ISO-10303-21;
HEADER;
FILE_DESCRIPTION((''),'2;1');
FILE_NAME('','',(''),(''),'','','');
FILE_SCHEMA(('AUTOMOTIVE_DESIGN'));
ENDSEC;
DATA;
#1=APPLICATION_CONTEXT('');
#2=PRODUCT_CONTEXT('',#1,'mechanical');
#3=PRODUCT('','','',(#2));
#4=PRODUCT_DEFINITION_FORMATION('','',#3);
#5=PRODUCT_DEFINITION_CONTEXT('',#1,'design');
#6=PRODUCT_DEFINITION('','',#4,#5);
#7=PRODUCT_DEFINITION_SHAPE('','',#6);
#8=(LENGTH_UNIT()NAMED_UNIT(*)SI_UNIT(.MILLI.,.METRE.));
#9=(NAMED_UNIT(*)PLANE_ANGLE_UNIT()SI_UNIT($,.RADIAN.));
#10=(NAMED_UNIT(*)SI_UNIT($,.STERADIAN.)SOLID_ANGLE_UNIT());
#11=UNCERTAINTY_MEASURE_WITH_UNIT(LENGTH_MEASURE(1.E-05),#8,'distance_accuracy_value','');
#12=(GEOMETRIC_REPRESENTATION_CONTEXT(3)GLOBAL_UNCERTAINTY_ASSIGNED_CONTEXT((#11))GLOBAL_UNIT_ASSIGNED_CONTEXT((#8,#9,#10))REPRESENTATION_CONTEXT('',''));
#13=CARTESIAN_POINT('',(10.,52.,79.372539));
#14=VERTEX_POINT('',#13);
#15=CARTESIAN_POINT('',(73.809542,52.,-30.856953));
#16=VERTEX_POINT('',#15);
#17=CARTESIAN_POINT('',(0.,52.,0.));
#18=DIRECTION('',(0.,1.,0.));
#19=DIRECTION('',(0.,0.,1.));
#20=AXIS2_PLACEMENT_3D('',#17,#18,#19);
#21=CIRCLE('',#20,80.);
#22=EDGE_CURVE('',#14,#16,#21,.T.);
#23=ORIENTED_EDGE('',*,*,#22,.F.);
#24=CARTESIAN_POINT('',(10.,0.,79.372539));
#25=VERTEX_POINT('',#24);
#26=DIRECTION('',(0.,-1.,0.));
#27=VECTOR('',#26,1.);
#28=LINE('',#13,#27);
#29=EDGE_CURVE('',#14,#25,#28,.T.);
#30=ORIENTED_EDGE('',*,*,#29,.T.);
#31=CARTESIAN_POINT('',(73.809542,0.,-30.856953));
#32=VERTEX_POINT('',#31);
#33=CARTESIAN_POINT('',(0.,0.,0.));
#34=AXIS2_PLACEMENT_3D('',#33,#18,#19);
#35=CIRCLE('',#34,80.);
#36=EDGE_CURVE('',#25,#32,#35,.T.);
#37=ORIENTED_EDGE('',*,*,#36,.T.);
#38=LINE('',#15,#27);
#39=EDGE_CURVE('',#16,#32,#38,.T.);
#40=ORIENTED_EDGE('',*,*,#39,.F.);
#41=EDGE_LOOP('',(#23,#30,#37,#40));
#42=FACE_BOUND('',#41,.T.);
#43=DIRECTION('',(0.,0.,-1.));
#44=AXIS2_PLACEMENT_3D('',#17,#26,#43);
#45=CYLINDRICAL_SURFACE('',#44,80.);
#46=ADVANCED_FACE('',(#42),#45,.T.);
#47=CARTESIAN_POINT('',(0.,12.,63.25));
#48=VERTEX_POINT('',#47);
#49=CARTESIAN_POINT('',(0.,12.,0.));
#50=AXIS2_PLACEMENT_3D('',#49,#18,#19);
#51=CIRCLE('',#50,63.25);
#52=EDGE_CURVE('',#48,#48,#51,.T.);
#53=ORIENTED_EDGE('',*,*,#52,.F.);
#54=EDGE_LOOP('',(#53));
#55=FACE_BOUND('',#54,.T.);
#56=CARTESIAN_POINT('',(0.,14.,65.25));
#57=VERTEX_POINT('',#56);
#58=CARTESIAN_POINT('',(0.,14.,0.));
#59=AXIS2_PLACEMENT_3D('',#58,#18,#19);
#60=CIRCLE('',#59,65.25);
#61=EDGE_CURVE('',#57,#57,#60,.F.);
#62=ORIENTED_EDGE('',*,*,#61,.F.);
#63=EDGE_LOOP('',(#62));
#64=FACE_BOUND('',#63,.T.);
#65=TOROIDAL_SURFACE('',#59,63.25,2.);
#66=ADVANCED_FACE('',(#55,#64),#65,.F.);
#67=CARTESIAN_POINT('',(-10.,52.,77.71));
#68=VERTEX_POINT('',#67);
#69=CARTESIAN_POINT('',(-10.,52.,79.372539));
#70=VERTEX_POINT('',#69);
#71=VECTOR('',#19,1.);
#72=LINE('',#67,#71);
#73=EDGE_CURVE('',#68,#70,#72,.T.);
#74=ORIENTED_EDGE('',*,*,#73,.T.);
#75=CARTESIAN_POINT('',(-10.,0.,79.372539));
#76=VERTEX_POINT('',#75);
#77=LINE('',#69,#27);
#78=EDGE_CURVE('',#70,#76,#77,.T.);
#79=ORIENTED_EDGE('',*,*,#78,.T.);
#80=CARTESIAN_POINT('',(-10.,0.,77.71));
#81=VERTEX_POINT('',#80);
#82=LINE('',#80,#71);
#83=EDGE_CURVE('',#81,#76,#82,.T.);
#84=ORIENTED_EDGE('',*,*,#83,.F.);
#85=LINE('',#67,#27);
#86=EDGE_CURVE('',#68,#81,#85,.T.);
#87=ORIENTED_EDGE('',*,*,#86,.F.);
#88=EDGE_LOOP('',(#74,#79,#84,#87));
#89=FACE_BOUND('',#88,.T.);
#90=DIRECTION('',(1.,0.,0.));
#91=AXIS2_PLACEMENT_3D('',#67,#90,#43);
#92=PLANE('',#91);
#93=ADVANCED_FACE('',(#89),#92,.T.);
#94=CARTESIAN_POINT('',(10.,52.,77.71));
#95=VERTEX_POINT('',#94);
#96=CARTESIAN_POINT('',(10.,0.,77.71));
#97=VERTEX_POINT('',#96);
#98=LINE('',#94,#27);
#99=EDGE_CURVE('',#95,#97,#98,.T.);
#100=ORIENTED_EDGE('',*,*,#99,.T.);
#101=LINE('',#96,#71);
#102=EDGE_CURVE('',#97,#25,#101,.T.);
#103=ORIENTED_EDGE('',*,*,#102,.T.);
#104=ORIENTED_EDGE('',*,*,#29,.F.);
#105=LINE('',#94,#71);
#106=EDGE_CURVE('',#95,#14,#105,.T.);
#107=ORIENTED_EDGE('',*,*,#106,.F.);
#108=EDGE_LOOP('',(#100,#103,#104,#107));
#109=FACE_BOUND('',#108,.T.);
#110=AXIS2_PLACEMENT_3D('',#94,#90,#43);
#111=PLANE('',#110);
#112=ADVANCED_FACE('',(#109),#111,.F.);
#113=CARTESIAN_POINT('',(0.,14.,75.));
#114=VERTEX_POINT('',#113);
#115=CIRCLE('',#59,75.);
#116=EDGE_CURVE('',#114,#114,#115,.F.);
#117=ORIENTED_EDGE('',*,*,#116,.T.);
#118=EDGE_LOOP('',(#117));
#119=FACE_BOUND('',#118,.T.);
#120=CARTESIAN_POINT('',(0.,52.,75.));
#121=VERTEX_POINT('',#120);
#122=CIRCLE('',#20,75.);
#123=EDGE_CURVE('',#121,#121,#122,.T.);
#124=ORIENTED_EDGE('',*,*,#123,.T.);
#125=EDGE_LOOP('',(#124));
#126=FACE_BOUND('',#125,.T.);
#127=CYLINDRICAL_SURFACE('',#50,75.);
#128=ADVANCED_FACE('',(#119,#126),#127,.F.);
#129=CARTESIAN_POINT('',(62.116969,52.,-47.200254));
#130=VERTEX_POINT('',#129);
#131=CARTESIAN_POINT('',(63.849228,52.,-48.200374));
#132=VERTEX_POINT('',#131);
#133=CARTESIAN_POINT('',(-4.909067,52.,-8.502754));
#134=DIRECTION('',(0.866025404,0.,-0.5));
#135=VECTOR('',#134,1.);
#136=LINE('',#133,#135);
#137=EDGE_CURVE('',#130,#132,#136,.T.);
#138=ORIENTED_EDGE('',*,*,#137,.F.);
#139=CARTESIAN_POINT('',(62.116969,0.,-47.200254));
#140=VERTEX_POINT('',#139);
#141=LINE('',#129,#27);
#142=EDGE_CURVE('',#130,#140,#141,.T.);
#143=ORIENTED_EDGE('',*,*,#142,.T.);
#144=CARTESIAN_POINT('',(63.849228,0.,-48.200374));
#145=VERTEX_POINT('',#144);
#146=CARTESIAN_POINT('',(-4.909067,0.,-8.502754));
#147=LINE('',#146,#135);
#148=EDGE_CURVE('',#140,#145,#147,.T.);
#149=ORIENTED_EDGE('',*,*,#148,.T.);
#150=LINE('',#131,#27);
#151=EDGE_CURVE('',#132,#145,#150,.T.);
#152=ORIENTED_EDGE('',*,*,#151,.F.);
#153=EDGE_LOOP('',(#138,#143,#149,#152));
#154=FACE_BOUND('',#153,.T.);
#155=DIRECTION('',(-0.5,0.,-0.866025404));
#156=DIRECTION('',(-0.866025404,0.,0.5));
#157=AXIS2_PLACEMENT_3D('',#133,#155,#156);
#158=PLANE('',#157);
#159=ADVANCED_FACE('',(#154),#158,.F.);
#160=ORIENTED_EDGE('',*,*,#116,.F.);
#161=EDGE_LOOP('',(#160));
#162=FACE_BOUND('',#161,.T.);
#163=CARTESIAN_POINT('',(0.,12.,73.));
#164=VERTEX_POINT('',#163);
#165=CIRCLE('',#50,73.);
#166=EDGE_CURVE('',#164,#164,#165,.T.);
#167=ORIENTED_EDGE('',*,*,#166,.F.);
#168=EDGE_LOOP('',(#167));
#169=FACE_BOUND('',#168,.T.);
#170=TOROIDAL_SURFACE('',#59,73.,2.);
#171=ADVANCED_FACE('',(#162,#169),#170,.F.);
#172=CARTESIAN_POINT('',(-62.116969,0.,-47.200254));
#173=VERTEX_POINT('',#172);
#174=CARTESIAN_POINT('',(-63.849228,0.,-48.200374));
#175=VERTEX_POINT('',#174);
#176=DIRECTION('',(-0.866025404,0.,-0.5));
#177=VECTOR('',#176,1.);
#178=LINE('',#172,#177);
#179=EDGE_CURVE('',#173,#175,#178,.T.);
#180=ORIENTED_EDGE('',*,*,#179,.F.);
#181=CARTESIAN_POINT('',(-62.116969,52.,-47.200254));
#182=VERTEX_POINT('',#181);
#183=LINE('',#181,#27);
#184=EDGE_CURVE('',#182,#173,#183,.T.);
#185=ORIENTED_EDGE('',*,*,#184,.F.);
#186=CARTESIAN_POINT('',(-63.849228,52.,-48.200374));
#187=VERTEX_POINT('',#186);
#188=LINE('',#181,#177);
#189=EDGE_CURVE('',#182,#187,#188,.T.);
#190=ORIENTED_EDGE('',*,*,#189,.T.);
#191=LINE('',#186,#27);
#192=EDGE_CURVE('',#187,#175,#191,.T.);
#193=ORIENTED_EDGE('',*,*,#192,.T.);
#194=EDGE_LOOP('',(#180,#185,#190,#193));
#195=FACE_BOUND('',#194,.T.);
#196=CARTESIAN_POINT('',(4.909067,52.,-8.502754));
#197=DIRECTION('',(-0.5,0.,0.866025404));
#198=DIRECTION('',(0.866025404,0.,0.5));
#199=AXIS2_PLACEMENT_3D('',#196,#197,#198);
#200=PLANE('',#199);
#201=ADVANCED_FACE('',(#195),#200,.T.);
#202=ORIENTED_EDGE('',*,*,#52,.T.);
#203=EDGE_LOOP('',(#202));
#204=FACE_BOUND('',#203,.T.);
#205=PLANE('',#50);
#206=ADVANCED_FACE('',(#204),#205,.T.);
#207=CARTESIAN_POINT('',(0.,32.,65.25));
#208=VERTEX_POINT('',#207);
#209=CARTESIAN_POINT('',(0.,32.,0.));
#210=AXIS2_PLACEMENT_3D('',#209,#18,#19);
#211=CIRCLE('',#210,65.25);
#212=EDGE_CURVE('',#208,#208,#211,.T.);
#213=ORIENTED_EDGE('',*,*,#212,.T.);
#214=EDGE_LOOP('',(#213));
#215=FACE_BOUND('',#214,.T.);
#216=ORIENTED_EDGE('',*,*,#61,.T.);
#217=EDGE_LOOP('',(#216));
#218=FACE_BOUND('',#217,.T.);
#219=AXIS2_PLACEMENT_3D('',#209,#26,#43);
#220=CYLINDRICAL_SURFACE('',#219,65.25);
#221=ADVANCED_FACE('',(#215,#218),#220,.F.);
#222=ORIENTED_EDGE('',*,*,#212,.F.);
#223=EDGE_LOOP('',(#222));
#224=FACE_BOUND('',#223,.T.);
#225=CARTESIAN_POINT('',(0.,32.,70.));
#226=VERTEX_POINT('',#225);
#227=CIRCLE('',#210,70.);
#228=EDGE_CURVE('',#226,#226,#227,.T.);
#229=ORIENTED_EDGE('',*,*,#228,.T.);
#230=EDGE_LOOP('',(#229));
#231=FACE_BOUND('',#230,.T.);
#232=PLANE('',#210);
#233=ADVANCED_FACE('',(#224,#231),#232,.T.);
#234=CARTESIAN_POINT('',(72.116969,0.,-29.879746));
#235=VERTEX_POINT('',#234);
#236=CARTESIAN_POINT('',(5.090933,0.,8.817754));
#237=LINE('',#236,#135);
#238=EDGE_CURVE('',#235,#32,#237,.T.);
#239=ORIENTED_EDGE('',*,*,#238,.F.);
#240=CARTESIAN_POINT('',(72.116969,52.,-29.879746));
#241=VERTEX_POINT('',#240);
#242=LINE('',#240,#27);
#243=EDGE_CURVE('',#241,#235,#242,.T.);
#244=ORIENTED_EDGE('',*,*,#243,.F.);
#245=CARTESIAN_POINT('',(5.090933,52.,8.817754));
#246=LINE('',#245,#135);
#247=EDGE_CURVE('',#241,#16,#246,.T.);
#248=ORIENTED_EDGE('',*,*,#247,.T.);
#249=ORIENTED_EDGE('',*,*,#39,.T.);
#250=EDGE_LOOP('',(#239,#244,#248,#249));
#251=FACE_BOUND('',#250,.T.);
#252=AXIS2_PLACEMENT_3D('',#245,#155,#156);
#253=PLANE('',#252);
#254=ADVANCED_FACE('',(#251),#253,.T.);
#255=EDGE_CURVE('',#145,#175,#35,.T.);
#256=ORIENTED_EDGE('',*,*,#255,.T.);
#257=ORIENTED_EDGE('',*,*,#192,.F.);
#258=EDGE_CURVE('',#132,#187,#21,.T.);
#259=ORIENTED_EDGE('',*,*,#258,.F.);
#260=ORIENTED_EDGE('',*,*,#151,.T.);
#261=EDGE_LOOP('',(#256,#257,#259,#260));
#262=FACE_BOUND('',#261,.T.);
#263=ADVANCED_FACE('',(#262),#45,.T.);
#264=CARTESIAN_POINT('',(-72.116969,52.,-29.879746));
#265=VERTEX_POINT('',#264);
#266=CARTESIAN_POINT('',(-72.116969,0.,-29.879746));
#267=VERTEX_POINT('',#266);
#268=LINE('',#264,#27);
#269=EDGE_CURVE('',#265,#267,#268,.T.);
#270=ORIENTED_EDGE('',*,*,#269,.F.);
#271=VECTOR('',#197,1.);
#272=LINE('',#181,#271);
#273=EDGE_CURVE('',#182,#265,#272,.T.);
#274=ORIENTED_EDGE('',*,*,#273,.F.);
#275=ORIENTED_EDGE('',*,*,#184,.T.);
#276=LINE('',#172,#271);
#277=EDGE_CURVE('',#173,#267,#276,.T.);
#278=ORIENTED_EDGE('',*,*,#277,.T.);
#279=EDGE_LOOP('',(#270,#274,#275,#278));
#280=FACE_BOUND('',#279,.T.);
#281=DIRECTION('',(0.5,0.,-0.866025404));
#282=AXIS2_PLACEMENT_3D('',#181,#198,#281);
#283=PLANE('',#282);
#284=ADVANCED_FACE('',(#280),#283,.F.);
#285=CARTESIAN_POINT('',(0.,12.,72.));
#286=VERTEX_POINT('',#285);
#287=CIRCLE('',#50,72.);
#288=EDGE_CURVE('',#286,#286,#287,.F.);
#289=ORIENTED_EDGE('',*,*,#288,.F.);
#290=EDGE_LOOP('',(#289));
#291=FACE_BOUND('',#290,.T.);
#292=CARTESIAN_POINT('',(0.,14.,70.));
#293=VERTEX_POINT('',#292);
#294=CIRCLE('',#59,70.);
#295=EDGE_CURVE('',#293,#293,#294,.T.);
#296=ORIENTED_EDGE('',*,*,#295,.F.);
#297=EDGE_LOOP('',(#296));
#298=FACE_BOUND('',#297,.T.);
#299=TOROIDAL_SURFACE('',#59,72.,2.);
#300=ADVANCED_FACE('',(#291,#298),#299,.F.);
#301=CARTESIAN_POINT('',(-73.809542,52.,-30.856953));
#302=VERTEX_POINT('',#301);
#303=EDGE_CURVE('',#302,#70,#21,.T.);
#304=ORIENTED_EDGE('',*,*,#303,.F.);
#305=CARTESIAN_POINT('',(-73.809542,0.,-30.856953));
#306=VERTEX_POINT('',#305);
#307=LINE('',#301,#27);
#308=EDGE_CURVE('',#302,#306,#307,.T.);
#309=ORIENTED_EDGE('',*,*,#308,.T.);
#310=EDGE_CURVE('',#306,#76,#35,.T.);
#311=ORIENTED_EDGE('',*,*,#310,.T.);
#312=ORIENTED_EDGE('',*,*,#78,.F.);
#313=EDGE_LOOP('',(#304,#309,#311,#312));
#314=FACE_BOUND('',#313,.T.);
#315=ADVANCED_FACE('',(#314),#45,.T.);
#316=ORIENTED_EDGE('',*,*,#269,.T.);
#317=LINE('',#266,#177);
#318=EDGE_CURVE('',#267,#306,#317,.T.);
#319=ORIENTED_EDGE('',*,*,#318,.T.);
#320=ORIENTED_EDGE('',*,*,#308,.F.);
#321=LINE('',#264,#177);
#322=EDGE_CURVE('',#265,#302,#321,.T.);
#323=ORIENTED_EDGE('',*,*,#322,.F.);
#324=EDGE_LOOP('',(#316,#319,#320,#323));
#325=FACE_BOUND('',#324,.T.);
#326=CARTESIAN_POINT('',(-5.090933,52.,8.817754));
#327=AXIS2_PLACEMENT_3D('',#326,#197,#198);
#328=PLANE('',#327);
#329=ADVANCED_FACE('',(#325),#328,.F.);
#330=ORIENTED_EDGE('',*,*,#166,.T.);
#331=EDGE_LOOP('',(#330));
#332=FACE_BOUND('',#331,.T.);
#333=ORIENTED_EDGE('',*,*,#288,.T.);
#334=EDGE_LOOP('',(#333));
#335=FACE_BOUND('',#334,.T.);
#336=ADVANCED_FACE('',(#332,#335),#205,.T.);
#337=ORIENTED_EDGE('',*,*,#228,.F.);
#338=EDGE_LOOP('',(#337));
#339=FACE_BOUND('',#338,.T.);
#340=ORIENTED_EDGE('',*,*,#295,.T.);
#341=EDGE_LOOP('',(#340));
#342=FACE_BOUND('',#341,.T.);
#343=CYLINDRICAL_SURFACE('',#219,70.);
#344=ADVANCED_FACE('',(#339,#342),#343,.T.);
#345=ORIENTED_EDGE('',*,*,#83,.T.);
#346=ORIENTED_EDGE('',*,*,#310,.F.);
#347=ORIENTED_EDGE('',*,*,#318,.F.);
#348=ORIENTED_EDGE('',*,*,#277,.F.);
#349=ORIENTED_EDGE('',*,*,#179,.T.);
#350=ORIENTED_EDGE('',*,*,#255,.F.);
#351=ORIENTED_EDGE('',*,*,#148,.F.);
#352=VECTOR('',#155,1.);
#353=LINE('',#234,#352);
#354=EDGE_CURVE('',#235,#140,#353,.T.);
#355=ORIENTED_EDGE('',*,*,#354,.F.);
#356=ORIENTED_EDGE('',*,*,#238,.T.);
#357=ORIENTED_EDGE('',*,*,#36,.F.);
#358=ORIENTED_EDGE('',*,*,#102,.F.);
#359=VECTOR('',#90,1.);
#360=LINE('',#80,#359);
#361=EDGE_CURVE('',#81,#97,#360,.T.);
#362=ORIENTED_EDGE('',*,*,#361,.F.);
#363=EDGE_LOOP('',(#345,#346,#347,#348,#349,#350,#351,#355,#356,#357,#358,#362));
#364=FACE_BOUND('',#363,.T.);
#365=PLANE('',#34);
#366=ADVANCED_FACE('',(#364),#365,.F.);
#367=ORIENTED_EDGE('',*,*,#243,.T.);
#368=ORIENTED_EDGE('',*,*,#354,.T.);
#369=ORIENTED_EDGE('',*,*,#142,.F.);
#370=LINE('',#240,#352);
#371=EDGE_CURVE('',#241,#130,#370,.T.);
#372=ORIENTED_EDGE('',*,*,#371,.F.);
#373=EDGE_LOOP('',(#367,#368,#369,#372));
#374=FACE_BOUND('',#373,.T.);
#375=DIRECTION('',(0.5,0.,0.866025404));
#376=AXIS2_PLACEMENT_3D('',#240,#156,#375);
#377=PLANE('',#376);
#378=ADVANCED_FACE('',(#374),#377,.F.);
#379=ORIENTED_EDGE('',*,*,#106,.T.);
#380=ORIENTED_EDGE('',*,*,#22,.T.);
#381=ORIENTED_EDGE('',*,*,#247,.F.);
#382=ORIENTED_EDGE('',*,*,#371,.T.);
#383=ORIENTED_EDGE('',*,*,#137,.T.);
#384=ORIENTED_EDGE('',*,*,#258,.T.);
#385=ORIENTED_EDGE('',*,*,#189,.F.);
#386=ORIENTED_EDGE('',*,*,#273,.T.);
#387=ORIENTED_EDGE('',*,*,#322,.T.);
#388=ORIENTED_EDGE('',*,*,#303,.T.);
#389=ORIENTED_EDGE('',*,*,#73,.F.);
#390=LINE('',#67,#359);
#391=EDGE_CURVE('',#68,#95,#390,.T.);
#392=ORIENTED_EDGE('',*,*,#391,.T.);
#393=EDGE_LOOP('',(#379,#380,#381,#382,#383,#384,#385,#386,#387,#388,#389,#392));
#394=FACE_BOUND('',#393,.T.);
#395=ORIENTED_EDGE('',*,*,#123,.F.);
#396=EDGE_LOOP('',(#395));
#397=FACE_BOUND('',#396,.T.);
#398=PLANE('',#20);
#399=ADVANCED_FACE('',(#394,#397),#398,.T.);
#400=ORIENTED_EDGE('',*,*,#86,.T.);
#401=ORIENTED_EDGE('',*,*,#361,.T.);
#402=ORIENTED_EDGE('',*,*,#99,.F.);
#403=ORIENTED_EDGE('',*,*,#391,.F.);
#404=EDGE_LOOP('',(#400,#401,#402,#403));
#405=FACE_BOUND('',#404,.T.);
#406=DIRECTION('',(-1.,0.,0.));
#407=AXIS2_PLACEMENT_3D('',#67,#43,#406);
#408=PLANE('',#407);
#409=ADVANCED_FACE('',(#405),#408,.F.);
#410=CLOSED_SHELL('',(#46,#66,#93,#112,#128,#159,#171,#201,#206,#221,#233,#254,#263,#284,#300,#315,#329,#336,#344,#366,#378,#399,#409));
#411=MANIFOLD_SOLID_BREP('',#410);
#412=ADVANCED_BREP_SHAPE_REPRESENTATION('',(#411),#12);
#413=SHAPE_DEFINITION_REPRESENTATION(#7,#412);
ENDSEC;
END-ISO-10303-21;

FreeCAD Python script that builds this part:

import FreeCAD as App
import Part
import Sketcher

V = App.Vector
Q = App.Units.Quantity


def edges_at(feature, points):
    """Names of the edges that pass closest to the given points."""
    edges = feature.Shape.Edges
    near = lambda p: min(range(len(edges)), key=lambda i: edges[i].distToShape(Part.Vertex(*p))[0])
    return sorted({f"Edge{near(p) + 1}" for p in points})

doc = App.newDocument("Part")
params = doc.addObject("Spreadsheet::Sheet", "Params")
for row, (alias, value) in enumerate([
    ("sketch1_diameter", "160 mm"),
    ("pad1_length", "52 mm"),
    ("sketch2_diameter", "150 mm"),
    ("pocket1_length", "40 mm"),
    ("sketch3_diameter", "140 mm"),
    ("sketch3_diameter2", "130.5 mm"),
    ("pad2_length", "20 mm"),
    ("fillet_radius", "2 mm"),
    ("fillet2_radius", "2 mm"),
    ("sketch4_width", "20 mm"),
    ("sketch4_length", "20 mm"),
], start=1):
    params.set(f"A{row}", alias)
    params.set(f"B{row}", "=" + value)
    params.setAlias(f"B{row}", alias)

body = doc.addObject("PartDesign::Body", "Body")

sketch1 = body.newObject("Sketcher::SketchObject", "Sketch")
sketch1.AttachmentSupport = (doc.getObject("XZ_Plane"), [""])
sketch1.MapMode = "FlatFace"
sketch1.addGeometry(Part.Circle(V(0, 0, 0), V(0, 0, 1), 80), False)
sketch1.addConstraint([
    Sketcher.Constraint("Coincident", 0, 3, -1, 1),
    Sketcher.Constraint("Diameter", 0, 160.0),
])
sketch1.setExpression("Constraints[1]", "Params.sketch1_diameter")
pad1 = body.newObject("PartDesign::Pad", "Pad")
pad1.Profile = sketch1
pad1.setExpression("Length", "Params.pad1_length")
pad1.Reversed = True

sketch2 = body.newObject("Sketcher::SketchObject", "Sketch001")
sketch2.AttachmentSupport = (doc.getObject("XZ_Plane"), [""])
sketch2.MapMode = "FlatFace"
sketch2.AttachmentOffset = App.Placement(V(0, 0, -52), App.Rotation())
sketch2.addGeometry(Part.Circle(V(0, 0, 0), V(0, 0, 1), 75), False)
sketch2.addConstraint([
    Sketcher.Constraint("Coincident", 0, 3, -1, 1),
    Sketcher.Constraint("Diameter", 0, 150.0),
])
sketch2.setExpression("Constraints[1]", "Params.sketch2_diameter")
pocket1 = body.newObject("PartDesign::Pocket", "Pocket")
pocket1.Profile = sketch2
pocket1.setExpression("Length", "Params.pocket1_length")
pocket1.Reversed = True

sketch3 = body.newObject("Sketcher::SketchObject", "Sketch002")
sketch3.AttachmentSupport = (doc.getObject("XZ_Plane"), [""])
sketch3.MapMode = "FlatFace"
sketch3.AttachmentOffset = App.Placement(V(0, 0, -12), App.Rotation())
sketch3.addGeometry([
    Part.Circle(V(0, 0, 0), V(0, 0, 1), 70),
    Part.Circle(V(0, 0, 0), V(0, 0, 1), 65),
], False)
sketch3.addConstraint([
    Sketcher.Constraint("Coincident", 0, 3, -1, 1),
    Sketcher.Constraint("Coincident", 1, 3, -1, 1),
    Sketcher.Constraint("Diameter", 0, 140.0),
    Sketcher.Constraint("Diameter", 1, 130.5),
])
sketch3.setExpression("Constraints[2]", "Params.sketch3_diameter")
sketch3.setExpression("Constraints[3]", "Params.sketch3_diameter2")
pad2 = body.newObject("PartDesign::Pad", "Pad001")
pad2.Profile = sketch3
pad2.setExpression("Length", "Params.pad2_length")
pad2.Reversed = True
doc.recompute()

fillet = body.newObject("PartDesign::Fillet", "Fillet")
fillet.Base = (pad2, edges_at(pad2, [(0, 12, -65.25)]))
fillet.setExpression("Radius", "Params.fillet_radius")
doc.recompute()

fillet2 = body.newObject("PartDesign::Fillet", "Fillet001")
fillet2.Base = (fillet, edges_at(fillet, [(0, 12, -70), (0, 12, -75)]))
fillet2.setExpression("Radius", "Params.fillet2_radius")

sketch4 = body.newObject("Sketcher::SketchObject", "Sketch003")
sketch4.AttachmentSupport = (doc.getObject("XZ_Plane"), [""])
sketch4.MapMode = "FlatFace"
sketch4.addGeometry([
    Part.LineSegment(V(89, -40, 0), V(72, -30, 0)),
    Part.LineSegment(V(72, -30, 0), V(62, -47, 0)),
    Part.LineSegment(V(62, -47, 0), V(79, -57, 0)),
    Part.LineSegment(V(79, -57, 0), V(89, -40, 0)),
    Part.LineSegment(V(-10, 98, 0), V(-10, 78, 0)),
    Part.LineSegment(V(-10, 78, 0), V(10, 78, 0)),
    Part.LineSegment(V(10, 78, 0), V(10, 98, 0)),
    Part.LineSegment(V(10, 98, 0), V(-10, 98, 0)),
    Part.LineSegment(V(-79, -57, 0), V(-62, -47, 0)),
    Part.LineSegment(V(-62, -47, 0), V(-72, -30, 0)),
    Part.LineSegment(V(-72, -30, 0), V(-89, -40, 0)),
    Part.LineSegment(V(-89, -40, 0), V(-79, -57, 0)),
], False)
sketch4.addConstraint([
    Sketcher.Constraint("Coincident", 0, 2, 1, 1),
    Sketcher.Constraint("Coincident", 1, 2, 2, 1),
    Sketcher.Constraint("Coincident", 2, 2, 3, 1),
    Sketcher.Constraint("Coincident", 3, 2, 0, 1),
    Sketcher.Constraint("Coincident", 4, 2, 5, 1),
    Sketcher.Constraint("Coincident", 5, 2, 6, 1),
    Sketcher.Constraint("Coincident", 6, 2, 7, 1),
    Sketcher.Constraint("Coincident", 7, 2, 4, 1),
    Sketcher.Constraint("Coincident", 8, 2, 9, 1),
    Sketcher.Constraint("Coincident", 9, 2, 10, 1),
    Sketcher.Constraint("Coincident", 10, 2, 11, 1),
    Sketcher.Constraint("Coincident", 11, 2, 8, 1),
    Sketcher.Constraint("Vertical", 4),
    Sketcher.Constraint("Horizontal", 5),
    Sketcher.Constraint("Vertical", 6),
    Sketcher.Constraint("Horizontal", 7),
    Sketcher.Constraint("Symmetric", 1, 2, 8, 2, -2),
    Sketcher.Constraint("Symmetric", 0, 2, 9, 2, -2),
    Sketcher.Constraint("Symmetric", 3, 2, 10, 2, -2),
    Sketcher.Constraint("Symmetric", 2, 2, 11, 2, -2),
    Sketcher.Constraint("Perpendicular", 0, 1),
    Sketcher.Constraint("Perpendicular", 1, 2),
    Sketcher.Constraint("Perpendicular", 2, 3),
    Sketcher.Constraint("Equal", 7, 4),
    Sketcher.Constraint("Equal", 0, 1),
    Sketcher.Constraint("DistanceX", 5, 1, 5, 2, 20.0),
    Sketcher.Constraint("Angle", 0, Q("150 deg")),
    Sketcher.Constraint("Distance", 0, 20.0),
    Sketcher.Constraint("DistanceX", 4, 2, -1, 1, 10.0),
    Sketcher.Constraint("DistanceY", -1, 1, 4, 2, 77.71),
    Sketcher.Constraint("DistanceX", -1, 1, 0, 2, 72.116969),
    Sketcher.Constraint("DistanceY", 0, 2, -1, 1, 29.879746),
])
sketch4.setExpression("Constraints[25]", "Params.sketch4_width")
sketch4.setExpression("Constraints[27]", "Params.sketch4_length")
pocket2 = body.newObject("PartDesign::Pocket", "Pocket001")
pocket2.Profile = sketch4
pocket2.Type = "ThroughAll"

doc.recompute()
